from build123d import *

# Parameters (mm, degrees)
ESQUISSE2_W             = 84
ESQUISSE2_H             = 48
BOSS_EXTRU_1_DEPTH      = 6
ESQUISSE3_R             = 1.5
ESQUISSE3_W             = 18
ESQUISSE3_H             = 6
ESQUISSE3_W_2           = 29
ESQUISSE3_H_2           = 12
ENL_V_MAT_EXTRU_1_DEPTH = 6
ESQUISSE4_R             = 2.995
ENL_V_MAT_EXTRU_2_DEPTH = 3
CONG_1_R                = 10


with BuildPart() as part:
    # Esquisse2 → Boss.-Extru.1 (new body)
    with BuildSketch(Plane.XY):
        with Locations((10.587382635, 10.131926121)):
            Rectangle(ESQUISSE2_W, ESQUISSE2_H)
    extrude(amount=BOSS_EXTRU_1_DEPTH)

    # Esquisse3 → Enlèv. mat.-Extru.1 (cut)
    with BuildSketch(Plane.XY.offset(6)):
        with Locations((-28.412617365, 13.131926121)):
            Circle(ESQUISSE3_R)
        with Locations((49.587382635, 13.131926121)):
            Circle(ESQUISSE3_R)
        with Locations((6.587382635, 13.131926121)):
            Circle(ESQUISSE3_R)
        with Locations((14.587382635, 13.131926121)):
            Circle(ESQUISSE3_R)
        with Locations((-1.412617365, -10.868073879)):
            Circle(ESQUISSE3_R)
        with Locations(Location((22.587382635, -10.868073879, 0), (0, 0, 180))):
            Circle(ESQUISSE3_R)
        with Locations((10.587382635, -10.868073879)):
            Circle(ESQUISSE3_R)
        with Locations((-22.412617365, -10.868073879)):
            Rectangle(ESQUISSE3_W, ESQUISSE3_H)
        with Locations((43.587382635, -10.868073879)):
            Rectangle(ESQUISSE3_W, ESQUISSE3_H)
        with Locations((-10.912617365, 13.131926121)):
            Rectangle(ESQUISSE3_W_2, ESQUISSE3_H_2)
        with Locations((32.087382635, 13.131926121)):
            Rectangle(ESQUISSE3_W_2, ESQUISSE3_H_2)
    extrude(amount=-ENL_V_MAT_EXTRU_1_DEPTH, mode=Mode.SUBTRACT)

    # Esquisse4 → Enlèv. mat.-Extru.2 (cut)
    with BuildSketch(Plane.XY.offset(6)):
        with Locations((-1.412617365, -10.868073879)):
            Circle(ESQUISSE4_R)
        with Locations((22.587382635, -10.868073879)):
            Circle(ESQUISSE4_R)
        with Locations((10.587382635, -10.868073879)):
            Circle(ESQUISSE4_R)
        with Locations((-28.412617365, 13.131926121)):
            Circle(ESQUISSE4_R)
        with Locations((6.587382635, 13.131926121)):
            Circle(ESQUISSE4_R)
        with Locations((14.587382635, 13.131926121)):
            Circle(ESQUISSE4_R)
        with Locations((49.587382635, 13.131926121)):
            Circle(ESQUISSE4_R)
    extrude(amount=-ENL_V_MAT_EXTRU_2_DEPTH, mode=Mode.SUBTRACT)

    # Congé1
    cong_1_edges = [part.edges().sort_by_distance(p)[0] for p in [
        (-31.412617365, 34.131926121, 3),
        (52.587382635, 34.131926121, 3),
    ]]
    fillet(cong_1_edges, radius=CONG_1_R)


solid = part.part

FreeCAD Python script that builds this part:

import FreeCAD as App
import Part
import Sketcher

V = App.Vector
Q = App.Units.Quantity


def edges_at(feature, points):
    """Names of the edges that pass closest to the given points."""
    edges = feature.Shape.Edges
    near = lambda p: min(range(len(edges)), key=lambda i: edges[i].distToShape(Part.Vertex(*p))[0])
    return sorted({f"Edge{near(p) + 1}" for p in points})


def add_polygon(sketch, points):
    """Adds a closed chain of lines whose ends are joined by coincident constraints."""
    first, n = sketch.GeometryCount, len(points)
    for a, b in zip(points, points[1:] + points[:1]):
        sketch.addGeometry(Part.LineSegment(App.Vector(*a, 0), App.Vector(*b, 0)), False)
    for i in range(n):
        sketch.addConstraint(Sketcher.Constraint("Coincident", first + i, 2, first + (i + 1) % n, 1))

doc = App.newDocument("Part")
body = doc.addObject("PartDesign::Body", "Body")

# Sketch on XY plane
sketch1 = body.newObject("Sketcher::SketchObject", "Sketch")
sketch1.AttachmentSupport = (doc.getObject("XY_Plane"), [""])
sketch1.MapMode = "FlatFace"
add_polygon(sketch1, [(-31.412617, 34.131926), (-31.412617, -13.868074), (52.587383, -13.868074), (52.587383, 34.131926)])  # lines 0-3
sketch1.addConstraint(Sketcher.Constraint("Vertical", 0))
sketch1.addConstraint(Sketcher.Constraint("Horizontal", 1))
sketch1.addConstraint(Sketcher.Constraint("Vertical", 2))
sketch1.addConstraint(Sketcher.Constraint("Horizontal", 3))
sketch1.addConstraint(Sketcher.Constraint("DistanceX", 1, 1, 1, 2, Q("84 mm")))
sketch1.addConstraint(Sketcher.Constraint("DistanceY", 0, 2, 0, 1, Q("48 mm")))
sketch1.addConstraint(Sketcher.Constraint("DistanceX", 0, 2, -1, 1, Q("31.412617 mm")))
sketch1.addConstraint(Sketcher.Constraint("DistanceY", 0, 2, -1, 1, Q("13.868074 mm")))
pad1 = body.newObject("PartDesign::Pad", "Pad")
pad1.Profile = sketch1
pad1.Length = 6

# Sketch on XY plane
sketch2 = body.newObject("Sketcher::SketchObject", "Sketch001")
sketch2.AttachmentSupport = (doc.getObject("XY_Plane"), [""])
sketch2.MapMode = "FlatFace"
sketch2.AttachmentOffset = App.Placement(V(0, 0, 6), App.Rotation())
sketch2.addGeometry(Part.Circle(V(-28.412617, 13.131926, 0), V(0, 0, 1), 1.5), False)  # 0
sketch2.addGeometry(Part.Circle(V(49.587383, 13.131926, 0), V(0, 0, 1), 1.5), False)  # 1
sketch2.addGeometry(Part.Circle(V(6.587383, 13.131926, 0), V(0, 0, 1), 1.5), False)  # 2
sketch2.addGeometry(Part.Circle(V(14.587383, 13.131926, 0), V(0, 0, 1), 1.5), False)  # 3
sketch2.addGeometry(Part.Circle(V(-1.412617, -10.868074, 0), V(0, 0, 1), 1.5), False)  # 4
sketch2.addGeometry(Part.Circle(V(22.587383, -10.868074, 0), V(0, 0, 1), 1.5), False)  # 5
sketch2.addGeometry(Part.Circle(V(10.587383, -10.868074, 0), V(0, 0, 1), 1.5), False)  # 6
add_polygon(sketch2, [(-31.412617, -7.868074), (-31.412617, -13.868074), (-13.412617, -13.868074), (-13.412617, -7.868074)])  # lines 7-10
add_polygon(sketch2, [(34.587383, -7.868074), (34.587383, -13.868074), (52.587383, -13.868074), (52.587383, -7.868074)])  # lines 11-14
add_polygon(sketch2, [(-25.412617, 19.131926), (-25.412617, 7.131926), (3.587383, 7.131926), (3.587383, 19.131926)])  # lines 15-18
add_polygon(sketch2, [(17.587383, 19.131926), (17.587383, 7.131926), (46.587383, 7.131926), (46.587383, 19.131926)])  # lines 19-22
sketch2.addConstraint(Sketcher.Constraint("Vertical", 7))
sketch2.addConstraint(Sketcher.Constraint("Horizontal", 8))
sketch2.addConstraint(Sketcher.Constraint("Vertical", 9))
sketch2.addConstraint(Sketcher.Constraint("Horizontal", 10))
sketch2.addConstraint(Sketcher.Constraint("Vertical", 11))
sketch2.addConstraint(Sketcher.Constraint("Horizontal", 12))
sketch2.addConstraint(Sketcher.Constraint("Vertical", 13))
sketch2.addConstraint(Sketcher.Constraint("Horizontal", 14))
sketch2.addConstraint(Sketcher.Constraint("Vertical", 15))
sketch2.addConstraint(Sketcher.Constraint("Horizontal", 16))
sketch2.addConstraint(Sketcher.Constraint("Vertical", 17))
sketch2.addConstraint(Sketcher.Constraint("Horizontal", 18))
sketch2.addConstraint(Sketcher.Constraint("Vertical", 19))
sketch2.addConstraint(Sketcher.Constraint("Horizontal", 20))
sketch2.addConstraint(Sketcher.Constraint("Vertical", 21))
sketch2.addConstraint(Sketcher.Constraint("Horizontal", 22))
sketch2.addConstraint(Sketcher.Constraint("Equal", 0, 1))
sketch2.addConstraint(Sketcher.Constraint("Equal", 1, 2))
sketch2.addConstraint(Sketcher.Constraint("Equal", 2, 3))
sketch2.addConstraint(Sketcher.Constraint("Equal", 3, 4))
sketch2.addConstraint(Sketcher.Constraint("Equal", 4, 5))
sketch2.addConstraint(Sketcher.Constraint("Equal", 5, 6))
sketch2.addConstraint(Sketcher.Constraint("Horizontal", 0, 3, 1, 3))
sketch2.addConstraint(Sketcher.Constraint("Horizontal", 1, 3, 2, 3))
sketch2.addConstraint(Sketcher.Constraint("Horizontal", 2, 3, 3, 3))
sketch2.addConstraint(Sketcher.Constraint("Horizontal", 4, 3, 5, 3))
sketch2.addConstraint(Sketcher.Constraint("Horizontal", 5, 3, 6, 3))
sketch2.addConstraint(Sketcher.Constraint("Horizontal", 8, 2, 11, 2))
sketch2.addConstraint(Sketcher.Constraint("Horizontal", 10, 2, 13, 2))
sketch2.addConstraint(Sketcher.Constraint("Horizontal", 16, 2, 19, 2))
sketch2.addConstraint(Sketcher.Constraint("Horizontal", 18, 2, 21, 2))
sketch2.addConstraint(Sketcher.Constraint("Equal", 10, 12))
sketch2.addConstraint(Sketcher.Constraint("Equal", 18, 20))
sketch2.addConstraint(Sketcher.Constraint("Diameter", 0, Q("3 mm")))
sketch2.addConstraint(Sketcher.Constraint("DistanceX", 8, 1, 8, 2, Q("18 mm")))
sketch2.addConstraint(Sketcher.Constraint("DistanceX", 16, 1, 16, 2, Q("29 mm")))
sketch2.addConstraint(Sketcher.Constraint("DistanceY", 7, 2, 7, 1, Q("6 mm")))
sketch2.addConstraint(Sketcher.Constraint("DistanceY", 15, 2, 15, 1, Q("12 mm")))
sketch2.addConstraint(Sketcher.Constraint("DistanceX", 0, 3, 1, 3, Q("78 mm")))
sketch2.addConstraint(Sketcher.Constraint("DistanceX", 0, 3, 2, 3, Q("35 mm")))
sketch2.addConstraint(Sketcher.Constraint("DistanceX", 2, 3, 3, 3, Q("8 mm")))
sketch2.addConstraint(Sketcher.Constraint("DistanceX", 4, 3, 2, 3, Q("8 mm")))
sketch2.addConstraint(Sketcher.Constraint("DistanceY", 4, 3, 2, 3, Q("24 mm")))
sketch2.addConstraint(Sketcher.Constraint("DistanceX", 4, 3, 5, 3, Q("24 mm")))
sketch2.addConstraint(Sketcher.Constraint("DistanceX", 4, 3, 6, 3, Q("12 mm")))
sketch2.addConstraint(Sketcher.Constraint("DistanceX", 7, 2, 0, 3, Q("3 mm")))
sketch2.addConstraint(Sketcher.Constraint("DistanceY", 7, 2, 0, 3, Q("27 mm")))
sketch2.addConstraint(Sketcher.Constraint("DistanceX", 5, 3, 11, 2, Q("12 mm")))
sketch2.addConstraint(Sketcher.Constraint("DistanceX", 0, 3, 15, 2, Q("3 mm")))
sketch2.addConstraint(Sketcher.Constraint("DistanceY", 15, 2, 0, 3, Q("6 mm")))
sketch2.addConstraint(Sketcher.Constraint("DistanceX", 3, 3, 19, 2, Q("3 mm")))
sketch2.addConstraint(Sketcher.Constraint("DistanceX", 0, 3, -1, 1, Q("28.412617 mm")))
sketch2.addConstraint(Sketcher.Constraint("DistanceY", -1, 1, 0, 3, Q("13.131926 mm")))
pocket1 = body.newObject("PartDesign::Pocket", "Pocket")
pocket1.Profile = sketch2
pocket1.Length = 6

# Sketch on XY plane
sketch3 = body.newObject("Sketcher::SketchObject", "Sketch002")
sketch3.AttachmentSupport = (doc.getObject("XY_Plane"), [""])
sketch3.MapMode = "FlatFace"
sketch3.AttachmentOffset = App.Placement(V(0, 0, 6), App.Rotation())
sketch3.addGeometry(Part.Circle(V(-1.412617, -10.868074, 0), V(0, 0, 1), 2.995), False)
sketch3.addGeometry(Part.Circle(V(22.587383, -10.868074, 0), V(0, 0, 1), 2.995), False)
sketch3.addGeometry(Part.Circle(V(10.587383, -10.868074, 0), V(0, 0, 1), 2.995), False)
sketch3.addGeometry(Part.Circle(V(-28.412617, 13.131926, 0), V(0, 0, 1), 2.995), False)
sketch3.addGeometry(Part.Circle(V(6.587383, 13.131926, 0), V(0, 0, 1), 2.995), False)
sketch3.addGeometry(Part.Circle(V(14.587383, 13.131926, 0), V(0, 0, 1), 2.995), False)
sketch3.addGeometry(Part.Circle(V(49.587383, 13.131926, 0), V(0, 0, 1), 2.995), False)
sketch3.addConstraint(Sketcher.Constraint("Equal", 0, 1))
sketch3.addConstraint(Sketcher.Constraint("Equal", 1, 2))
sketch3.addConstraint(Sketcher.Constraint("Equal", 2, 3))
sketch3.addConstraint(Sketcher.Constraint("Equal", 3, 4))
sketch3.addConstraint(Sketcher.Constraint("Equal", 4, 5))
sketch3.addConstraint(Sketcher.Constraint("Equal", 5, 6))
sketch3.addConstraint(Sketcher.Constraint("Horizontal", 0, 3, 1, 3))
sketch3.addConstraint(Sketcher.Constraint("Horizontal", 1, 3, 2, 3))
sketch3.addConstraint(Sketcher.Constraint("Horizontal", 3, 3, 4, 3))
sketch3.addConstraint(Sketcher.Constraint("Horizontal", 4, 3, 5, 3))
sketch3.addConstraint(Sketcher.Constraint("Horizontal", 5, 3, 6, 3))
sketch3.addConstraint(Sketcher.Constraint("Diameter", 0, Q("5.99 mm")))
sketch3.addConstraint(Sketcher.Constraint("DistanceX", 0, 3, 1, 3, Q("24 mm")))
sketch3.addConstraint(Sketcher.Constraint("DistanceX", 0, 3, 2, 3, Q("12 mm")))
sketch3.addConstraint(Sketcher.Constraint("DistanceX", 3, 3, 0, 3, Q("27 mm")))
sketch3.addConstraint(Sketcher.Constraint("DistanceY", 0, 3, 3, 3, Q("24 mm")))
sketch3.addConstraint(Sketcher.Constraint("DistanceX", 4, 3, 2, 3, Q("4 mm")))
sketch3.addConstraint(Sketcher.Constraint("DistanceX", 4, 3, 5, 3, Q("8 mm")))
sketch3.addConstraint(Sketcher.Constraint("DistanceX", 5, 3, 6, 3, Q("35 mm")))
sketch3.addConstraint(Sketcher.Constraint("DistanceX", 0, 3, -1, 1, Q("1.412617 mm")))
sketch3.addConstraint(Sketcher.Constraint("DistanceY", 0, 3, -1, 1, Q("10.868074 mm")))
pocket2 = body.newObject("PartDesign::Pocket", "Pocket001")
pocket2.Profile = sketch3
pocket2.Length = 3
doc.recompute()

fillet = body.newObject("PartDesign::Fillet", "Fillet")
fillet.Base = (pocket2, edges_at(pocket2, [(-31.413, 34.132, 3), (52.587, 34.132, 3)]))
fillet.Radius = 10

doc.recompute()
